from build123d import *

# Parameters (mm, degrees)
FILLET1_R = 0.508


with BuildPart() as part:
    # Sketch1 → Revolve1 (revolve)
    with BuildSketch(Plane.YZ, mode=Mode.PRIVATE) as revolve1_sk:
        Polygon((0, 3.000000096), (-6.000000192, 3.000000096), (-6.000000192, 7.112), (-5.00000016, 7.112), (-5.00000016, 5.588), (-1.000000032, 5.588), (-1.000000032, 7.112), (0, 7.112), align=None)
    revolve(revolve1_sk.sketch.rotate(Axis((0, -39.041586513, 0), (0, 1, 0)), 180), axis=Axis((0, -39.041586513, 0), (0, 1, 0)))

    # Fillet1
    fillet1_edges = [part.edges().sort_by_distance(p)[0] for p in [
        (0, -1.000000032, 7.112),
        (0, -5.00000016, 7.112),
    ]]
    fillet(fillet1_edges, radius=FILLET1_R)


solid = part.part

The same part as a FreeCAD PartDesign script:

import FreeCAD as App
import Part
import Sketcher
Q = App.Units.Quantity


def edges_at(feature, points):
    """Names of the edges that pass closest to the given points."""
    edges = feature.Shape.Edges
    near = lambda p: min(range(len(edges)), key=lambda i: edges[i].distToShape(Part.Vertex(*p))[0])
    return sorted({f"Edge{near(p) + 1}" for p in points})


def add_polygon(sketch, points):
    """Adds a closed chain of lines whose ends are joined by coincident constraints."""
    first, n = sketch.GeometryCount, len(points)
    for a, b in zip(points, points[1:] + points[:1]):
        sketch.addGeometry(Part.LineSegment(App.Vector(*a, 0), App.Vector(*b, 0)), False)
    for i in range(n):
        sketch.addConstraint(Sketcher.Constraint("Coincident", first + i, 2, first + (i + 1) % n, 1))

doc = App.newDocument("Part")
body = doc.addObject("PartDesign::Body", "Body")

sketch1 = body.newObject("Sketcher::SketchObject", "Sketch")
sketch1.AttachmentSupport = (doc.getObject("YZ_Plane"), [""])
sketch1.MapMode = "FlatFace"
add_polygon(sketch1, [(-6, 3), (0, 3), (0, 7.112), (-1, 7.112), (-1, 5.588), (-5, 5.588), (-5, 7.112), (-6, 7.112)])
sketch1.addConstraint([
    Sketcher.Constraint("Horizontal", 0),
    Sketcher.Constraint("Vertical", 1),
    Sketcher.Constraint("Horizontal", 2),
    Sketcher.Constraint("Vertical", 3),
    Sketcher.Constraint("Horizontal", 4),
    Sketcher.Constraint("Vertical", 5),
    Sketcher.Constraint("Horizontal", 6),
    Sketcher.Constraint("Vertical", 7),
    Sketcher.Constraint("PointOnObject", 0, 2, -2),
    Sketcher.Constraint("Horizontal", 2, 2, 5, 2),
    Sketcher.Constraint("Equal", 2, 6),
    Sketcher.Constraint("DistanceX", 0, 1, 0, 2, Q("6 mm")),
    Sketcher.Constraint("DistanceX", 2, 2, 2, 1, Q("1 mm")),
    Sketcher.Constraint("DistanceY", -1, 1, 0, 2, Q("3 mm")),
    Sketcher.Constraint("DistanceY", 1, 1, 1, 2, Q("4.112 mm")),
    Sketcher.Constraint("DistanceY", 3, 2, 3, 1, Q("1.524 mm")),
])
revolution = body.newObject("PartDesign::Revolution", "Revolution")
revolution.Profile = sketch1
revolution.ReferenceAxis = (sketch1, ["H_Axis"])
revolution.Angle = 360
doc.recompute()

fillet = body.newObject("PartDesign::Fillet", "Fillet")
fillet.Base = (revolution, edges_at(revolution, [(0, -1, 7.112), (0, -5, 7.112)]))
fillet.Radius = 0.508

doc.recompute()
